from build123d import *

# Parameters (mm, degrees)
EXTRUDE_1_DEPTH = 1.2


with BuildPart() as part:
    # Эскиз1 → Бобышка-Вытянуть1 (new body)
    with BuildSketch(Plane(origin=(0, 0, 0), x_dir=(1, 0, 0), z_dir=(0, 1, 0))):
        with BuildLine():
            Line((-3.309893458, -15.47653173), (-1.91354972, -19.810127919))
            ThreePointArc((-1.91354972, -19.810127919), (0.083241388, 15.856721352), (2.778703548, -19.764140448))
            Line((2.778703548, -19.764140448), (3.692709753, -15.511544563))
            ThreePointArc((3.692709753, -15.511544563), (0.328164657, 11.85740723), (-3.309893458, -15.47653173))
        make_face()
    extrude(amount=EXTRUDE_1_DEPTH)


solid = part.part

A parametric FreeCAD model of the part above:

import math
import FreeCAD as App
import Part
import Sketcher
Q = App.Units.Quantity

doc = App.newDocument("Part")
params = doc.addObject("Spreadsheet::Sheet", "Params")
for row, (alias, value) in enumerate([
    ("sketch1_radius", "13.9 mm"),
    ("sketch1_radius2", "17.9 mm"),
    ("pad1_length", "1.2 mm"),
], start=1):
    params.set(f"A{row}", alias)
    params.set(f"B{row}", "=" + value)
    params.setAlias(f"B{row}", alias)

body = doc.addObject("PartDesign::Body", "Body")

# Sketch on XZ plane
sketch1 = body.newObject("Sketcher::SketchObject", "Sketch")
sketch1.AttachmentSupport = (doc.getObject("XZ_Plane"), [""])
sketch1.MapMode = "FlatFace"
sketch1.addGeometry([
    Part.LineSegment(App.Vector(-1.9, 19.8, 0), App.Vector(-3.3, 15.5, 0)),
    Part.ArcOfCircle(Part.Circle(App.Vector(0.3, 2, 0), App.Vector(0, 0, 1), 13.9), math.radians(105), math.radians(436)),
    Part.LineSegment(App.Vector(3.7, 15.5, 0), App.Vector(2.8, 19.8, 0)),
    Part.ArcOfCircle(Part.Circle(App.Vector(0.3, 2, 0), App.Vector(0, 0, 1), 17.9), math.radians(97), math.radians(442)),
], False)
sketch1.addConstraint([
    Sketcher.Constraint("Coincident", 0, 2, 1, 1),
    Sketcher.Constraint("Coincident", 1, 2, 2, 1),
    Sketcher.Constraint("Coincident", 2, 2, 3, 2),
    Sketcher.Constraint("Coincident", 3, 1, 0, 1),
    Sketcher.Constraint("Coincident", 3, 3, 1, 3),
    Sketcher.Constraint("Radius", 1, 13.9),
    Sketcher.Constraint("Radius", 3, 17.9),
    Sketcher.Constraint("Angle", 2, Q("102.129992 deg")),
    Sketcher.Constraint("Distance", 2, 4.34971),
    Sketcher.Constraint("DistanceY", -1, 1, 1, 3, 2.042419),
    Sketcher.Constraint("DistanceY", -1, 1, 0, 2, 15.476532),
    Sketcher.Constraint("DistanceX", -1, 1, 1, 2, 3.69271),
    Sketcher.Constraint("DistanceX", 3, 1, -1, 1, 1.91355),
])
sketch1.setExpression("Constraints[5]", "Params.sketch1_radius")
sketch1.setExpression("Constraints[6]", "Params.sketch1_radius2")
pad1 = body.newObject("PartDesign::Pad", "Pad")
pad1.Profile = sketch1
pad1.setExpression("Length", "Params.pad1_length")
pad1.Reversed = True

doc.recompute()
